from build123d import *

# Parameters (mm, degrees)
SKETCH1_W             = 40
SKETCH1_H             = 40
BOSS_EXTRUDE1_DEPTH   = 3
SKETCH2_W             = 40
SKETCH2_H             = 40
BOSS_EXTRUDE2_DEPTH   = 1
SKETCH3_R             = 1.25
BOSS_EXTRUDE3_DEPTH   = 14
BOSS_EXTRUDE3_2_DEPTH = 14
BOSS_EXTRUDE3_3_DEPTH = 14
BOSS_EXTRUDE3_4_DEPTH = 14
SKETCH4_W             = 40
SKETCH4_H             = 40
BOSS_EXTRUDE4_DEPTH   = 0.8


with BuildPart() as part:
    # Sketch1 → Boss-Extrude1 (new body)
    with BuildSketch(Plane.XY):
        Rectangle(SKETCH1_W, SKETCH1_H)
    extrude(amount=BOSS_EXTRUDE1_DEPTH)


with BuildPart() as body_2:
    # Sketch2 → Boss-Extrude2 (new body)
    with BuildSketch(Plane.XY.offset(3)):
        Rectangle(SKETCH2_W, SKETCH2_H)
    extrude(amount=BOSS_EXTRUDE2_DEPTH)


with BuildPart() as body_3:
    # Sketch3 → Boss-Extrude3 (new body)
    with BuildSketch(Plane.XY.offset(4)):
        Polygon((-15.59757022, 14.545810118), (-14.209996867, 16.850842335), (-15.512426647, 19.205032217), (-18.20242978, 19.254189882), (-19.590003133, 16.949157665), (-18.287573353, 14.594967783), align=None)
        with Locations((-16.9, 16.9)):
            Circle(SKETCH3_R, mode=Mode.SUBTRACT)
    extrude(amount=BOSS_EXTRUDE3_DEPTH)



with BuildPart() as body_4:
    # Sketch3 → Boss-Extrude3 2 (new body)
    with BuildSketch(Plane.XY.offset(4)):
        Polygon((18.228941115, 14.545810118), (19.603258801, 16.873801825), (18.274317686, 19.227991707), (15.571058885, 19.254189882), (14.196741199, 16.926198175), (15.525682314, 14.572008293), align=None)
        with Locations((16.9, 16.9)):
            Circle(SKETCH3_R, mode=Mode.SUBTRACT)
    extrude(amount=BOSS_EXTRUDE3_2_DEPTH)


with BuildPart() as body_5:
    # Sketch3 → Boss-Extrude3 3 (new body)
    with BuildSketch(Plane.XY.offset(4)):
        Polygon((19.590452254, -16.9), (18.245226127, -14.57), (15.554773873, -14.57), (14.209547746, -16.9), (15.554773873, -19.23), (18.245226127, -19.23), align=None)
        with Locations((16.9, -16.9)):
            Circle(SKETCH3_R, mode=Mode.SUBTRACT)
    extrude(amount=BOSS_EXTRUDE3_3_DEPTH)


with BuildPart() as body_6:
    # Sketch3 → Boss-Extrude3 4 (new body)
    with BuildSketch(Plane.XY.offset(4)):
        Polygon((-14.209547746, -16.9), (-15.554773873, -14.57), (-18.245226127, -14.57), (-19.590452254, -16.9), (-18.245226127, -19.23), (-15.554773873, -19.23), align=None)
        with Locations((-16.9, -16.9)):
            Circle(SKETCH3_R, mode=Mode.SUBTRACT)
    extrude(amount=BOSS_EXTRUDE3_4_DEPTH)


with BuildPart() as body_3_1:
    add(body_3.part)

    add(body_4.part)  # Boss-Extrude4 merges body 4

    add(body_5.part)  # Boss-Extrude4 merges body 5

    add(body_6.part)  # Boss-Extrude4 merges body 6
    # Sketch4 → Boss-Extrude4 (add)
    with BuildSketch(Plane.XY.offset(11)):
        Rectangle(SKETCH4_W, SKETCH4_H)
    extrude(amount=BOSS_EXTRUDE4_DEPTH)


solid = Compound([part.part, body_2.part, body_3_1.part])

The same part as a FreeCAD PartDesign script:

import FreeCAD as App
import Part
import Sketcher

V = App.Vector
Q = App.Units.Quantity

doc = App.newDocument("Part")
params = doc.addObject("Spreadsheet::Sheet", "Params")
for row, (alias, value) in enumerate([
    ("sketch1_width", "40 mm"),
    ("pad1_length", "3 mm"),
    ("sketch2_width", "40 mm"),
    ("pad2_length", "1 mm"),
    ("sketch3_diameter", "2.5 mm"),
    ("pad3_length", "14 mm"),
    ("sketch4_diameter", "2.5 mm"),
    ("pad4_length", "14 mm"),
    ("sketch5_diameter", "2.5 mm"),
    ("pad5_length", "14 mm"),
    ("sketch6_diameter", "2.5 mm"),
    ("pad6_length", "14 mm"),
    ("sketch7_width", "40 mm"),
    ("pad7_length", "0.8 mm"),
], start=1):
    params.set(f"A{row}", alias)
    params.set(f"B{row}", "=" + value)
    params.setAlias(f"B{row}", alias)

body = doc.addObject("PartDesign::Body", "Body")

sketch1 = body.newObject("Sketcher::SketchObject", "Sketch")
sketch1.AttachmentSupport = (doc.getObject("XY_Plane"), [""])
sketch1.MapMode = "FlatFace"
sketch1.addGeometry([
    Part.LineSegment(V(-20, 20, 0), V(-20, -20, 0)),
    Part.LineSegment(V(-20, -20, 0), V(20, -20, 0)),
    Part.LineSegment(V(20, -20, 0), V(20, 20, 0)),
    Part.LineSegment(V(20, 20, 0), V(-20, 20, 0)),
], False)
sketch1.addConstraint([
    Sketcher.Constraint("Coincident", 0, 2, 1, 1),
    Sketcher.Constraint("Coincident", 1, 2, 2, 1),
    Sketcher.Constraint("Coincident", 2, 2, 3, 1),
    Sketcher.Constraint("Coincident", 3, 2, 0, 1),
    Sketcher.Constraint("Vertical", 0),
    Sketcher.Constraint("Horizontal", 1),
    Sketcher.Constraint("Vertical", 2),
    Sketcher.Constraint("Horizontal", 3),
    Sketcher.Constraint("Symmetric", 0, 2, 2, 2, -1, 1),
    Sketcher.Constraint("Equal", 3, 0),
    Sketcher.Constraint("DistanceX", 1, 1, 1, 2, 40.0),
])
sketch1.setExpression("Constraints[10]", "Params.sketch1_width")
pad1 = body.newObject("PartDesign::Pad", "Pad")
pad1.Profile = sketch1
pad1.setExpression("Length", "Params.pad1_length")
body2 = doc.addObject("PartDesign::Body", "Body001")

sketch2 = body2.newObject("Sketcher::SketchObject", "Sketch001")
sketch2.AttachmentSupport = (doc.getObject("XY_Plane001"), [""])
sketch2.MapMode = "FlatFace"
sketch2.AttachmentOffset = App.Placement(V(0, 0, 3), App.Rotation())
sketch2.addGeometry([
    Part.LineSegment(V(-20, 20, 0), V(-20, -20, 0)),
    Part.LineSegment(V(-20, -20, 0), V(20, -20, 0)),
    Part.LineSegment(V(20, -20, 0), V(20, 20, 0)),
    Part.LineSegment(V(20, 20, 0), V(-20, 20, 0)),
], False)
sketch2.addConstraint([
    Sketcher.Constraint("Coincident", 0, 2, 1, 1),
    Sketcher.Constraint("Coincident", 1, 2, 2, 1),
    Sketcher.Constraint("Coincident", 2, 2, 3, 1),
    Sketcher.Constraint("Coincident", 3, 2, 0, 1),
    Sketcher.Constraint("Vertical", 0),
    Sketcher.Constraint("Horizontal", 1),
    Sketcher.Constraint("Vertical", 2),
    Sketcher.Constraint("Horizontal", 3),
    Sketcher.Constraint("Symmetric", 0, 2, 2, 2, -1, 1),
    Sketcher.Constraint("Equal", 3, 0),
    Sketcher.Constraint("DistanceX", 1, 1, 1, 2, 40.0),
])
sketch2.setExpression("Constraints[10]", "Params.sketch2_width")
pad2 = body2.newObject("PartDesign::Pad", "Pad001")
pad2.Profile = sketch2
pad2.setExpression("Length", "Params.pad2_length")
body3 = doc.addObject("PartDesign::Body", "Body002")

sketch3 = body3.newObject("Sketcher::SketchObject", "Sketch002")
sketch3.AttachmentSupport = (doc.getObject("XY_Plane002"), [""])
sketch3.MapMode = "FlatFace"
sketch3.AttachmentOffset = App.Placement(V(0, 0, 4), App.Rotation())
sketch3.addGeometry([
    Part.LineSegment(V(-15.59757, 14.54581, 0), V(-14.209997, 16.850842, 0)),
    Part.LineSegment(V(-14.209997, 16.850842, 0), V(-15.512427, 19.205032, 0)),
    Part.LineSegment(V(-15.512427, 19.205032, 0), V(-18.20243, 19.25419, 0)),
    Part.LineSegment(V(-18.20243, 19.25419, 0), V(-19.590003, 16.949158, 0)),
    Part.LineSegment(V(-19.590003, 16.949158, 0), V(-18.287573, 14.594968, 0)),
    Part.LineSegment(V(-18.287573, 14.594968, 0), V(-15.59757, 14.54581, 0)),
    Part.Circle(V(-16.9, 16.9, 0), V(0, 0, 1), 1.25),
], False)
sketch3.addConstraint([
    Sketcher.Constraint("Coincident", 0, 2, 1, 1),
    Sketcher.Constraint("Coincident", 1, 2, 2, 1),
    Sketcher.Constraint("Coincident", 2, 2, 3, 1),
    Sketcher.Constraint("Coincident", 3, 2, 4, 1),
    Sketcher.Constraint("Coincident", 4, 2, 5, 1),
    Sketcher.Constraint("Coincident", 5, 2, 0, 1),
    Sketcher.Constraint("Parallel", 0, 3),
    Sketcher.Constraint("Parallel", 1, 4),
    Sketcher.Constraint("Parallel", 2, 5),
    Sketcher.Constraint("Equal", 0, 1),
    Sketcher.Constraint("Equal", 1, 2),
    Sketcher.Constraint("Equal", 2, 3),
    Sketcher.Constraint("Diameter", 6, 2.5),
    Sketcher.Constraint("DistanceX", 6, 3, -1, 1, 16.9),
    Sketcher.Constraint("DistanceY", -1, 1, 6, 3, 16.9),
    Sketcher.Constraint("DistanceX", 2, 2, -1, 1, 18.20243),
    Sketcher.Constraint("DistanceY", -1, 1, 2, 2, 19.25419),
    Sketcher.Constraint("DistanceX", 5, 2, -1, 1, 15.59757),
    Sketcher.Constraint("DistanceY", -1, 1, 5, 2, 14.54581),
    Sketcher.Constraint("DistanceX", 1, 2, 0, 2, 1.30243),
    Sketcher.Constraint("DistanceY", 0, 2, 1, 2, 2.35419),
])
sketch3.setExpression("Constraints[12]", "Params.sketch3_diameter")
pad3 = body3.newObject("PartDesign::Pad", "Pad002")
pad3.Profile = sketch3
pad3.setExpression("Length", "Params.pad3_length")
body4 = doc.addObject("PartDesign::Body", "Body003")

sketch4 = body4.newObject("Sketcher::SketchObject", "Sketch003")
sketch4.AttachmentSupport = (doc.getObject("XY_Plane003"), [""])
sketch4.MapMode = "FlatFace"
sketch4.AttachmentOffset = App.Placement(V(0, 0, 4), App.Rotation())
sketch4.addGeometry([
    Part.LineSegment(V(18.228941, 14.54581, 0), V(19.603259, 16.873802, 0)),
    Part.LineSegment(V(19.603259, 16.873802, 0), V(18.274318, 19.227992, 0)),
    Part.LineSegment(V(18.274318, 19.227992, 0), V(15.571059, 19.25419, 0)),
    Part.LineSegment(V(15.571059, 19.25419, 0), V(14.196741, 16.926198, 0)),
    Part.LineSegment(V(14.196741, 16.926198, 0), V(15.525682, 14.572008, 0)),
    Part.LineSegment(V(15.525682, 14.572008, 0), V(18.228941, 14.54581, 0)),
    Part.Circle(V(16.9, 16.9, 0), V(0, 0, 1), 1.25),
], False)
sketch4.addConstraint([
    Sketcher.Constraint("Coincident", 0, 2, 1, 1),
    Sketcher.Constraint("Coincident", 1, 2, 2, 1),
    Sketcher.Constraint("Coincident", 2, 2, 3, 1),
    Sketcher.Constraint("Coincident", 3, 2, 4, 1),
    Sketcher.Constraint("Coincident", 4, 2, 5, 1),
    Sketcher.Constraint("Coincident", 5, 2, 0, 1),
    Sketcher.Constraint("Parallel", 0, 3),
    Sketcher.Constraint("Parallel", 1, 4),
    Sketcher.Constraint("Parallel", 2, 5),
    Sketcher.Constraint("Equal", 0, 1),
    Sketcher.Constraint("Equal", 1, 2),
    Sketcher.Constraint("Equal", 2, 3),
    Sketcher.Constraint("Diameter", 6, 2.5),
    Sketcher.Constraint("DistanceX", -1, 1, 6, 3, 16.9),
    Sketcher.Constraint("DistanceY", -1, 1, 6, 3, 16.9),
    Sketcher.Constraint("DistanceY", -1, 1, 0, 2, 16.873802),
    Sketcher.Constraint("DistanceY", -1, 1, 3, 2, 16.926198),
    Sketcher.Constraint("DistanceY", 1, 2, 2, 2, 0.026198),
    Sketcher.Constraint("DistanceX", 2, 2, 0, 2, 4.0322),
    Sketcher.Constraint("DistanceX", -1, 1, 0, 2, 19.603259),
    Sketcher.Constraint("DistanceY", -1, 1, 1, 2, 19.227992),
])
sketch4.setExpression("Constraints[12]", "Params.sketch4_diameter")
pad4 = body4.newObject("PartDesign::Pad", "Pad003")
pad4.Profile = sketch4
pad4.setExpression("Length", "Params.pad4_length")
body5 = doc.addObject("PartDesign::Body", "Body004")

sketch5 = body5.newObject("Sketcher::SketchObject", "Sketch004")
sketch5.AttachmentSupport = (doc.getObject("XY_Plane004"), [""])
sketch5.MapMode = "FlatFace"
sketch5.AttachmentOffset = App.Placement(V(0, 0, 4), App.Rotation())
sketch5.addGeometry([
    Part.LineSegment(V(19.590452, -16.9, 0), V(18.245226, -14.57, 0)),
    Part.LineSegment(V(18.245226, -14.57, 0), V(15.554774, -14.57, 0)),
    Part.LineSegment(V(15.554774, -14.57, 0), V(14.209548, -16.9, 0)),
    Part.LineSegment(V(14.209548, -16.9, 0), V(15.554774, -19.23, 0)),
    Part.LineSegment(V(15.554774, -19.23, 0), V(18.245226, -19.23, 0)),
    Part.LineSegment(V(18.245226, -19.23, 0), V(19.590452, -16.9, 0)),
    Part.Circle(V(16.9, -16.9, 0), V(0, 0, 1), 1.25),
], False)
sketch5.addConstraint([
    Sketcher.Constraint("Coincident", 0, 2, 1, 1),
    Sketcher.Constraint("Coincident", 1, 2, 2, 1),
    Sketcher.Constraint("Coincident", 2, 2, 3, 1),
    Sketcher.Constraint("Coincident", 3, 2, 4, 1),
    Sketcher.Constraint("Coincident", 4, 2, 5, 1),
    Sketcher.Constraint("Coincident", 5, 2, 0, 1),
    Sketcher.Constraint("Horizontal", 1),
    Sketcher.Constraint("Horizontal", 4),
    Sketcher.Constraint("Parallel", 0, 3),
    Sketcher.Constraint("Parallel", 2, 5),
    Sketcher.Constraint("Horizontal", 6, 3, 2, 2),
    Sketcher.Constraint("Horizontal", 2, 2, 5, 2),
    Sketcher.Constraint("Vertical", 1, 2, 3, 2),
    Sketcher.Constraint("Vertical", 0, 2, 4, 2),
    Sketcher.Constraint("Diameter", 6, 2.5),
    Sketcher.Constraint("Angle", 0, Q("120 deg")),
    Sketcher.Constraint("DistanceX", -1, 1, 6, 3, 16.9),
    Sketcher.Constraint("DistanceY", 6, 3, -1, 1, 16.9),
    Sketcher.Constraint("DistanceY", 0, 2, -1, 1, 14.57),
    Sketcher.Constraint("DistanceX", 1, 2, 1, 1, 2.690452),
    Sketcher.Constraint("DistanceX", -1, 1, 0, 2, 18.245226),
])
sketch5.setExpression("Constraints[14]", "Params.sketch5_diameter")
pad5 = body5.newObject("PartDesign::Pad", "Pad004")
pad5.Profile = sketch5
pad5.setExpression("Length", "Params.pad5_length")
body6 = doc.addObject("PartDesign::Body", "Body005")

sketch6 = body6.newObject("Sketcher::SketchObject", "Sketch005")
sketch6.AttachmentSupport = (doc.getObject("XY_Plane005"), [""])
sketch6.MapMode = "FlatFace"
sketch6.AttachmentOffset = App.Placement(V(0, 0, 4), App.Rotation())
sketch6.addGeometry([
    Part.LineSegment(V(-14.209548, -16.9, 0), V(-15.554774, -14.57, 0)),
    Part.LineSegment(V(-15.554774, -14.57, 0), V(-18.245226, -14.57, 0)),
    Part.LineSegment(V(-18.245226, -14.57, 0), V(-19.590452, -16.9, 0)),
    Part.LineSegment(V(-19.590452, -16.9, 0), V(-18.245226, -19.23, 0)),
    Part.LineSegment(V(-18.245226, -19.23, 0), V(-15.554774, -19.23, 0)),
    Part.LineSegment(V(-15.554774, -19.23, 0), V(-14.209548, -16.9, 0)),
    Part.Circle(V(-16.9, -16.9, 0), V(0, 0, 1), 1.25),
], False)
sketch6.addConstraint([
    Sketcher.Constraint("Coincident", 0, 2, 1, 1),
    Sketcher.Constraint("Coincident", 1, 2, 2, 1),
    Sketcher.Constraint("Coincident", 2, 2, 3, 1),
    Sketcher.Constraint("Coincident", 3, 2, 4, 1),
    Sketcher.Constraint("Coincident", 4, 2, 5, 1),
    Sketcher.Constraint("Coincident", 5, 2, 0, 1),
    Sketcher.Constraint("Horizontal", 1),
    Sketcher.Constraint("Horizontal", 4),
    Sketcher.Constraint("Parallel", 0, 3),
    Sketcher.Constraint("Parallel", 2, 5),
    Sketcher.Constraint("Horizontal", 6, 3, 2, 2),
    Sketcher.Constraint("Horizontal", 2, 2, 5, 2),
    Sketcher.Constraint("Vertical", 1, 2, 3, 2),
    Sketcher.Constraint("Vertical", 0, 2, 4, 2),
    Sketcher.Constraint("Diameter", 6, 2.5),
    Sketcher.Constraint("Angle", 0, Q("120 deg")),
    Sketcher.Constraint("DistanceX", 6, 3, -1, 1, 16.9),
    Sketcher.Constraint("DistanceY", 6, 3, -1, 1, 16.9),
    Sketcher.Constraint("DistanceY", 0, 2, -1, 1, 14.57),
    Sketcher.Constraint("DistanceX", 1, 2, 1, 1, 2.690452),
    Sketcher.Constraint("DistanceX", 0, 2, -1, 1, 15.554774),
])
sketch6.setExpression("Constraints[14]", "Params.sketch6_diameter")
pad6 = body6.newObject("PartDesign::Pad", "Pad005")
pad6.Profile = sketch6
pad6.setExpression("Length", "Params.pad6_length")
body3.AllowCompound = True
doc.recompute()

boolean = body3.newObject("PartDesign::Boolean", "Boolean")
boolean.Type = "Fuse"
boolean.addObjects([body4])
doc.recompute()

boolean2 = body3.newObject("PartDesign::Boolean", "Boolean001")
boolean2.Type = "Fuse"
boolean2.addObjects([body5])
doc.recompute()

boolean3 = body3.newObject("PartDesign::Boolean", "Boolean002")
boolean3.Type = "Fuse"
boolean3.addObjects([body6])

sketch7 = body3.newObject("Sketcher::SketchObject", "Sketch006")
sketch7.AttachmentSupport = (doc.getObject("XY_Plane002"), [""])
sketch7.MapMode = "FlatFace"
sketch7.AttachmentOffset = App.Placement(V(0, 0, 11), App.Rotation())
sketch7.addGeometry([
    Part.LineSegment(V(-20, 20, 0), V(-20, -20, 0)),
    Part.LineSegment(V(-20, -20, 0), V(20, -20, 0)),
    Part.LineSegment(V(20, -20, 0), V(20, 20, 0)),
    Part.LineSegment(V(20, 20, 0), V(-20, 20, 0)),
], False)
sketch7.addConstraint([
    Sketcher.Constraint("Coincident", 0, 2, 1, 1),
    Sketcher.Constraint("Coincident", 1, 2, 2, 1),
    Sketcher.Constraint("Coincident", 2, 2, 3, 1),
    Sketcher.Constraint("Coincident", 3, 2, 0, 1),
    Sketcher.Constraint("Vertical", 0),
    Sketcher.Constraint("Horizontal", 1),
    Sketcher.Constraint("Vertical", 2),
    Sketcher.Constraint("Horizontal", 3),
    Sketcher.Constraint("Symmetric", 0, 2, 2, 2, -1, 1),
    Sketcher.Constraint("Equal", 3, 0),
    Sketcher.Constraint("DistanceX", 1, 1, 1, 2, 40.0),
])
sketch7.setExpression("Constraints[10]", "Params.sketch7_width")
pad7 = body3.newObject("PartDesign::Pad", "Pad006")
pad7.Profile = sketch7
pad7.setExpression("Length", "Params.pad7_length")

doc.recompute()
